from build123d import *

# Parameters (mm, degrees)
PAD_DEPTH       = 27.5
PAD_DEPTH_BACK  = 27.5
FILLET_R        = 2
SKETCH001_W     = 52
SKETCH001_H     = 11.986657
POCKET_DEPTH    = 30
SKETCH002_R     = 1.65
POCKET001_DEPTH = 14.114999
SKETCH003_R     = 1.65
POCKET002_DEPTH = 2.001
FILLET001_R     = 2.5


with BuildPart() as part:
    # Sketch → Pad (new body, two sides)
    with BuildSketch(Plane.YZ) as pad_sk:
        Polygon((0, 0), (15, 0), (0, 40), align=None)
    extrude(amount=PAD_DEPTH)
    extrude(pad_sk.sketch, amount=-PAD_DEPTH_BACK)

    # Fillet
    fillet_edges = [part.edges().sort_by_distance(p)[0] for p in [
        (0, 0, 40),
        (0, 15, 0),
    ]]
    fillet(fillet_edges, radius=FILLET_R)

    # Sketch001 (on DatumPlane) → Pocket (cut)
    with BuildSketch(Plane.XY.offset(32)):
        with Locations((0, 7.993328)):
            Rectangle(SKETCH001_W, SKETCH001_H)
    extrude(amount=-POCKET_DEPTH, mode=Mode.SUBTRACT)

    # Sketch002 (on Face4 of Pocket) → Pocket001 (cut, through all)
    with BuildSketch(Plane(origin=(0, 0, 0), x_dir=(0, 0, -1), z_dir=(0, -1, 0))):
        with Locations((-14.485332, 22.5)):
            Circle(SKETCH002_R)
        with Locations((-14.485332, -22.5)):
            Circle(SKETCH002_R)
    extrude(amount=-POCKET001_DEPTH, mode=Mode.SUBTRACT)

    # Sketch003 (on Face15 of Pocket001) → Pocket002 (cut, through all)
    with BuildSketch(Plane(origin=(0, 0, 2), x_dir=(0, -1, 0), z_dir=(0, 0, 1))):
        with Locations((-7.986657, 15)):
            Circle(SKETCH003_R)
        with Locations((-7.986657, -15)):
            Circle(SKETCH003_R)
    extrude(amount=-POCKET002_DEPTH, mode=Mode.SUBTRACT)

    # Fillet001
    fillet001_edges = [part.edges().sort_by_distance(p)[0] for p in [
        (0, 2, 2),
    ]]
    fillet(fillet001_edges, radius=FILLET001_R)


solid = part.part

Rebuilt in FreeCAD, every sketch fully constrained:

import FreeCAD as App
import Part
import Sketcher

V = App.Vector
Q = App.Units.Quantity


def edges_at(feature, points):
    """Names of the edges that pass closest to the given points."""
    edges = feature.Shape.Edges
    near = lambda p: min(range(len(edges)), key=lambda i: edges[i].distToShape(Part.Vertex(*p))[0])
    return sorted({f"Edge{near(p) + 1}" for p in points})

doc = App.newDocument("Part")
body = doc.addObject("PartDesign::Body", "Body")

# Sketch on YZ plane
sketch1 = doc.addObject("Sketcher::SketchObject", "Sketch")
body.addObject(sketch1)
sketch1.AttachmentSupport = (doc.YZ_Plane, [""])
sketch1.MapMode = "FlatFace"
sketch1.addGeometry(Part.LineSegment(V(0, 0, 0), V(15, 0, 0)), False)
sketch1.addGeometry(Part.LineSegment(V(15, 0, 0), V(0, 40, 0)), False)
sketch1.addGeometry(Part.LineSegment(V(0, 40, 0), V(0, 0, 0)), False)
sketch1.addConstraint(Sketcher.Constraint("Coincident", 0, 2, 1, 1))
sketch1.addConstraint(Sketcher.Constraint("Coincident", 1, 2, 2, 1))
sketch1.addConstraint(Sketcher.Constraint("Coincident", 2, 2, 0, 1))
sketch1.addConstraint(Sketcher.Constraint("Horizontal", 0))
sketch1.addConstraint(Sketcher.Constraint("Vertical", 2))
sketch1.addConstraint(Sketcher.Constraint("Coincident", 2, 2, -1, 1))
sketch1.addConstraint(Sketcher.Constraint("DistanceX", 0, 1, 0, 2, Q("15 mm")))
sketch1.addConstraint(Sketcher.Constraint("DistanceY", 2, 2, 2, 1, Q("40 mm")))
pad1 = doc.addObject("PartDesign::Pad", "Pad")
body.addObject(pad1)
pad1.Profile = sketch1
pad1.Type = "TwoLengths"
pad1.Length = 27.5
pad1.Length2 = 27.5
doc.recompute()

fillet = doc.addObject("PartDesign::Fillet", "Fillet")
body.addObject(fillet)
fillet.Base = (pad1, edges_at(pad1, [(0, 0, 40), (0, 15, 0)]))
fillet.Radius = 2

# Sketch on XY plane
sketch2 = doc.addObject("Sketcher::SketchObject", "Sketch001")
body.addObject(sketch2)
sketch2.AttachmentSupport = (doc.XY_Plane, [""])
sketch2.MapMode = "FlatFace"
sketch2.AttachmentOffset = App.Placement(V(0, 0, 32), App.Rotation())
sketch2.addGeometry(Part.LineSegment(V(-26, 14, 0), V(-26, 2, 0)), False)
sketch2.addGeometry(Part.LineSegment(V(-26, 2, 0), V(26, 2, 0)), False)
sketch2.addGeometry(Part.LineSegment(V(26, 2, 0), V(26, 14, 0)), False)
sketch2.addGeometry(Part.LineSegment(V(26, 14, 0), V(-26, 14, 0)), False)
sketch2.addConstraint(Sketcher.Constraint("Coincident", 0, 2, 1, 1))
sketch2.addConstraint(Sketcher.Constraint("Coincident", 1, 2, 2, 1))
sketch2.addConstraint(Sketcher.Constraint("Coincident", 2, 2, 3, 1))
sketch2.addConstraint(Sketcher.Constraint("Coincident", 3, 2, 0, 1))
sketch2.addConstraint(Sketcher.Constraint("Vertical", 0))
sketch2.addConstraint(Sketcher.Constraint("Horizontal", 1))
sketch2.addConstraint(Sketcher.Constraint("Vertical", 2))
sketch2.addConstraint(Sketcher.Constraint("Horizontal", 3))
sketch2.addConstraint(Sketcher.Constraint("DistanceX", 1, 1, 1, 2, Q("52 mm")))
sketch2.addConstraint(Sketcher.Constraint("DistanceX", 0, 2, -1, 1, Q("26 mm")))
sketch2.addConstraint(Sketcher.Constraint("DistanceY", -1, 1, 0, 2, Q("1.999999 mm")))
sketch2.addConstraint(Sketcher.Constraint("DistanceY", 0, 2, 0, 1, Q("11.986657 mm")))
pocket1 = doc.addObject("PartDesign::Pocket", "Pocket")
body.addObject(pocket1)
pocket1.Profile = sketch2
pocket1.Length = 30

# Sketch on XZ plane
sketch3 = doc.addObject("Sketcher::SketchObject", "Sketch002")
body.addObject(sketch3)
sketch3.AttachmentSupport = (doc.XZ_Plane, [""])
sketch3.MapMode = "FlatFace"
sketch3.addGeometry(Part.Circle(V(22.5, 14.5, 0), V(0, 0, 1), 1.6), False)
sketch3.addGeometry(Part.Circle(V(-22.5, 14.5, 0), V(0, 0, 1), 1.6), False)
sketch3.addConstraint(Sketcher.Constraint("Equal", 0, 1))
sketch3.addConstraint(Sketcher.Constraint("Symmetric", 0, 3, 1, 3, -2))
sketch3.addConstraint(Sketcher.Constraint("Diameter", 0, Q("3.3 mm")))
sketch3.addConstraint(Sketcher.Constraint("DistanceX", 1, 3, 0, 3, Q("45 mm")))
sketch3.addConstraint(Sketcher.Constraint("DistanceY", -1, 1, 0, 3, Q("14.485332 mm")))
pocket2 = doc.addObject("PartDesign::Pocket", "Pocket001")
body.addObject(pocket2)
pocket2.Profile = sketch3
pocket2.Type = "ThroughAll"

# Sketch on XY plane
sketch4 = doc.addObject("Sketcher::SketchObject", "Sketch003")
body.addObject(sketch4)
sketch4.AttachmentSupport = (doc.XY_Plane, [""])
sketch4.MapMode = "FlatFace"
sketch4.AttachmentOffset = App.Placement(V(0, 0, 2), App.Rotation())
sketch4.addGeometry(Part.Circle(V(15, 8, 0), V(0, 0, 1), 1.6), False)
sketch4.addGeometry(Part.Circle(V(-15, 8, 0), V(0, 0, 1), 1.6), False)
sketch4.addConstraint(Sketcher.Constraint("Equal", 0, 1))
sketch4.addConstraint(Sketcher.Constraint("Symmetric", 0, 3, 1, 3, -2))
sketch4.addConstraint(Sketcher.Constraint("Diameter", 0, Q("3.3 mm")))
sketch4.addConstraint(Sketcher.Constraint("DistanceX", -1, 1, 0, 3, Q("15 mm")))
sketch4.addConstraint(Sketcher.Constraint("DistanceY", -1, 1, 0, 3, Q("7.986657 mm")))
pocket3 = doc.addObject("PartDesign::Pocket", "Pocket002")
body.addObject(pocket3)
pocket3.Profile = sketch4
pocket3.Type = "ThroughAll"
doc.recompute()

fillet2 = doc.addObject("PartDesign::Fillet", "Fillet001")
body.addObject(fillet2)
fillet2.Base = (pocket3, edges_at(pocket3, [(0, 2, 2)]))
fillet2.Radius = 2.5

doc.recompute()
